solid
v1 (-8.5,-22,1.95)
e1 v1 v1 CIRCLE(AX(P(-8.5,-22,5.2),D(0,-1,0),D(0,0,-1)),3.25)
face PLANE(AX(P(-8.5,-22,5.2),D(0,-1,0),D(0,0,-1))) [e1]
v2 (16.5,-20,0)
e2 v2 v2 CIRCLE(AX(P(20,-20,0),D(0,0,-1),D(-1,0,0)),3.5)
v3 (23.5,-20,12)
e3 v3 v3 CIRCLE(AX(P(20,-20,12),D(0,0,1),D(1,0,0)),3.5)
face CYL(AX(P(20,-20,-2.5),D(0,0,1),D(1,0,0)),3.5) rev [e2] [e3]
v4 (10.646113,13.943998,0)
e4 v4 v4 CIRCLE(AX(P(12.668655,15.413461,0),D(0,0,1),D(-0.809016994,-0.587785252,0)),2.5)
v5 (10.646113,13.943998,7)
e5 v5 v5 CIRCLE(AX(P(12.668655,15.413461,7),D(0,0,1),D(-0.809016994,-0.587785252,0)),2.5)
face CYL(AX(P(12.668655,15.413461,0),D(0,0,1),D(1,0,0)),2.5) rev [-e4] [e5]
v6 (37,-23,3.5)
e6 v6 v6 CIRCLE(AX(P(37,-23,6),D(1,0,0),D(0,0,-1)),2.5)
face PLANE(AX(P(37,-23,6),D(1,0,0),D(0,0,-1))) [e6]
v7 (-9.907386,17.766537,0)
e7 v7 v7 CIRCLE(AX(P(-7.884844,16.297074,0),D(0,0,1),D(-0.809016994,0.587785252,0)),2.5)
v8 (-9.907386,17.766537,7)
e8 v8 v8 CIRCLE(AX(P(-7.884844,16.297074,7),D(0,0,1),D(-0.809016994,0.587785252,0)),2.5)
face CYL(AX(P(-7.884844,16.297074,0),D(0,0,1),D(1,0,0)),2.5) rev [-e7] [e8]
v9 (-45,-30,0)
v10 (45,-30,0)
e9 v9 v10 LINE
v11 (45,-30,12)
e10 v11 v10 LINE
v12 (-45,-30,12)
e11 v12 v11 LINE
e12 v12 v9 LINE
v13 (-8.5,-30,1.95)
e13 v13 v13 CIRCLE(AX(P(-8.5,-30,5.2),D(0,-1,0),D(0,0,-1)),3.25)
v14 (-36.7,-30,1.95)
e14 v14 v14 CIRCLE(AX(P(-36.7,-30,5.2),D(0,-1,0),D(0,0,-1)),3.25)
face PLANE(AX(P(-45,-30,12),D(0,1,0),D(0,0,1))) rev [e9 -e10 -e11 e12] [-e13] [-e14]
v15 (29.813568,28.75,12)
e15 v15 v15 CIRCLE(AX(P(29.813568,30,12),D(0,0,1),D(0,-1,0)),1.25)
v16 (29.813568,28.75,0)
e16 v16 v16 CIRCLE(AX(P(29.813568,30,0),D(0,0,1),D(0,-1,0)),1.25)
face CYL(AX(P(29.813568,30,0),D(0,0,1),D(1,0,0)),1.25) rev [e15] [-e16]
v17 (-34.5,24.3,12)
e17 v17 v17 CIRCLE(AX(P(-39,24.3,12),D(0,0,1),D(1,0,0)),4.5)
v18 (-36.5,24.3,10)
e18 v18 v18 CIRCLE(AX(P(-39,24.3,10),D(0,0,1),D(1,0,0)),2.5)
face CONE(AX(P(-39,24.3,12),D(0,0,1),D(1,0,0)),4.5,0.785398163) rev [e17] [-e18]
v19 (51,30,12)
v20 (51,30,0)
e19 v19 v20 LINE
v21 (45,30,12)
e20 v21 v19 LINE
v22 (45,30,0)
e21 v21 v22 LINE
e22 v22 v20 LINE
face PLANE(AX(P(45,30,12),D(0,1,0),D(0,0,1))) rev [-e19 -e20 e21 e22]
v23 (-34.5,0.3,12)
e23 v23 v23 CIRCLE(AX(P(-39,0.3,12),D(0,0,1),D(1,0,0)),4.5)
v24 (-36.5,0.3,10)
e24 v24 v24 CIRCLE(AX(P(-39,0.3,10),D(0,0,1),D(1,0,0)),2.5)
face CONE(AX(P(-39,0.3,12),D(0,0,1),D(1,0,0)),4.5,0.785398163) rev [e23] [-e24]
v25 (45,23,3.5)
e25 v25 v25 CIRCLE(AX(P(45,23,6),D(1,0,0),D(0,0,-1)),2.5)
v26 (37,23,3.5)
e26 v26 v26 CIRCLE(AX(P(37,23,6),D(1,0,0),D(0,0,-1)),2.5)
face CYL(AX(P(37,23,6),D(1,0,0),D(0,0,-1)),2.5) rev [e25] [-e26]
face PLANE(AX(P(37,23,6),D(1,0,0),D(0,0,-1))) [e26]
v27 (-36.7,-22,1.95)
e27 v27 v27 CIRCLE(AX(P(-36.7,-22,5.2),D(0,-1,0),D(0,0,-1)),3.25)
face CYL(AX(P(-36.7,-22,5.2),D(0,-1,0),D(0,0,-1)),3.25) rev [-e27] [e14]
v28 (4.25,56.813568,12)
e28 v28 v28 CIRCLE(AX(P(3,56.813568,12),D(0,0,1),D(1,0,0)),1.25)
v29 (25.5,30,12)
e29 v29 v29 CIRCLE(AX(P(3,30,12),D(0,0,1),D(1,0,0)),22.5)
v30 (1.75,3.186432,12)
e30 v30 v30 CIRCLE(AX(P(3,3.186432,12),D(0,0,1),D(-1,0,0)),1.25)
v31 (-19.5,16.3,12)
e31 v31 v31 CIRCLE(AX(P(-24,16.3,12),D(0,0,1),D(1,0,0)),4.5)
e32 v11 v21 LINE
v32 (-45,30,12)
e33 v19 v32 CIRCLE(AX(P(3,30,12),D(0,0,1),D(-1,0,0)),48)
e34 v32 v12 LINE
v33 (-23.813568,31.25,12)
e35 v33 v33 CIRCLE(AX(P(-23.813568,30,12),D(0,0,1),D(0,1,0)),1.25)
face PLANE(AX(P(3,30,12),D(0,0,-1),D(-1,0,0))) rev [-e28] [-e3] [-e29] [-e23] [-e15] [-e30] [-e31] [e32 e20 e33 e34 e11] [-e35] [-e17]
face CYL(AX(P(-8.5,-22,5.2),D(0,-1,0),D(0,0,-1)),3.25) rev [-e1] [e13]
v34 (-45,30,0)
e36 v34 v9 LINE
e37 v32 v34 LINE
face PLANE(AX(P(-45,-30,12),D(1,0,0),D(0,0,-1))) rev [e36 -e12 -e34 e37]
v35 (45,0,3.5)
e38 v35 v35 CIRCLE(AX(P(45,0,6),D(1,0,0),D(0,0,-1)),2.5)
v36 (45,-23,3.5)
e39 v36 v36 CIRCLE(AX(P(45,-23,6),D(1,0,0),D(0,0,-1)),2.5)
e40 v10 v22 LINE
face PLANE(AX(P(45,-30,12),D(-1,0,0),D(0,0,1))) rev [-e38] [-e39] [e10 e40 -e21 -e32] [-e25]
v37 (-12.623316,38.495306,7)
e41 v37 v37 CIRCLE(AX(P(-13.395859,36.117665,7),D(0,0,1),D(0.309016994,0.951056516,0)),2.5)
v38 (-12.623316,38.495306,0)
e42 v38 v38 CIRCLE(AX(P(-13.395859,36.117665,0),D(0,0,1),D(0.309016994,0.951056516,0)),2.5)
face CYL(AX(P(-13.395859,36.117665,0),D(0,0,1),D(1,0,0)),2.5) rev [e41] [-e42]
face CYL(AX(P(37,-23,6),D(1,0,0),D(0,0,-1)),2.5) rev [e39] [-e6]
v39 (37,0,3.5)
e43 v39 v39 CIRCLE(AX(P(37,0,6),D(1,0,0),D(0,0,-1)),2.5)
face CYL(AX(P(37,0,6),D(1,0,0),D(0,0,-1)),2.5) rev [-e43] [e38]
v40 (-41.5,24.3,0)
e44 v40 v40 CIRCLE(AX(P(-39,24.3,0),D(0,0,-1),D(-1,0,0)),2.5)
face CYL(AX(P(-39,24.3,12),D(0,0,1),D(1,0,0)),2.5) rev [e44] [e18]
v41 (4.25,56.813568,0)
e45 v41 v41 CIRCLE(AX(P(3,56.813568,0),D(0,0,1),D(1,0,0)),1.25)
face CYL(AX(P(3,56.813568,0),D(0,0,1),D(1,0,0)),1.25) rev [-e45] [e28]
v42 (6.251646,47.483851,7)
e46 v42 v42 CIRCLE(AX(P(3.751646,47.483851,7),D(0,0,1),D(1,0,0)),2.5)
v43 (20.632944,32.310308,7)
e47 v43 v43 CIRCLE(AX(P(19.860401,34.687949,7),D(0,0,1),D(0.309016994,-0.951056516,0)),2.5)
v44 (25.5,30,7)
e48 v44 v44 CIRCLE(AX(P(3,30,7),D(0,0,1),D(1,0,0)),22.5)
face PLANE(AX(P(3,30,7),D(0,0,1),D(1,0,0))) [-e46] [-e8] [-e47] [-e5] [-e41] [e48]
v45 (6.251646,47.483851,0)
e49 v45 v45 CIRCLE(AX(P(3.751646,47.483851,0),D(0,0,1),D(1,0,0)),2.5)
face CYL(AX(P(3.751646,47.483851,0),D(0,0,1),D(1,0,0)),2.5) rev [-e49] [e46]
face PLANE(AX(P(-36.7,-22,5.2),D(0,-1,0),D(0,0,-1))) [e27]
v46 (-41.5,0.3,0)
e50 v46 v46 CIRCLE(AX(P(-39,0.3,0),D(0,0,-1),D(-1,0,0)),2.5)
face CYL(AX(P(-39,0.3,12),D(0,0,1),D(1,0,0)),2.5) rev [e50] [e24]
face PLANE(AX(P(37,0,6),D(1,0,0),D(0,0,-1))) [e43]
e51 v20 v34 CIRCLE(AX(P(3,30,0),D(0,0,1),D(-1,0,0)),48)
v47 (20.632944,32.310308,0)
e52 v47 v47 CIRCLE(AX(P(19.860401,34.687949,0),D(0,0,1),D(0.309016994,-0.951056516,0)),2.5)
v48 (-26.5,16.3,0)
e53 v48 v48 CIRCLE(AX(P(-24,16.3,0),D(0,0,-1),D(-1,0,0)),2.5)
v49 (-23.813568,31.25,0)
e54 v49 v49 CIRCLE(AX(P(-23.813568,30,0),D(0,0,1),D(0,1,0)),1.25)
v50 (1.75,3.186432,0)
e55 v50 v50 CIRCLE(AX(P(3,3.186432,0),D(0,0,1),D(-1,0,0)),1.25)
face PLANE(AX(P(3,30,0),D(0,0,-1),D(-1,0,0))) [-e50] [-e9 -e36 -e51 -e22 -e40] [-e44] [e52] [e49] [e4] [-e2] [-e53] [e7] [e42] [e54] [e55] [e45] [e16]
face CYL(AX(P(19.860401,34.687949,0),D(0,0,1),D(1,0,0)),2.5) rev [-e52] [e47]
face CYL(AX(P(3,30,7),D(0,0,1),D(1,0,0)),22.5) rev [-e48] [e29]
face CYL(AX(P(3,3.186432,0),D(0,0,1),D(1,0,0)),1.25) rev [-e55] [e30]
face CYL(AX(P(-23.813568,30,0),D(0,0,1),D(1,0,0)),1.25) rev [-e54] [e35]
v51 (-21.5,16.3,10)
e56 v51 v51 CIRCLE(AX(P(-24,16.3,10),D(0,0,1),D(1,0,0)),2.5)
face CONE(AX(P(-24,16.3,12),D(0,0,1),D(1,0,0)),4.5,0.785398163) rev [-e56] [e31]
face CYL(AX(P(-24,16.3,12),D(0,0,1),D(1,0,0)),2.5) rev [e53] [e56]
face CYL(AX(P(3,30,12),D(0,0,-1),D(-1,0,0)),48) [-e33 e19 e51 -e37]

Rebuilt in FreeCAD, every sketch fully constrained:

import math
import FreeCAD as App
import Part
import Sketcher
from FreeCAD import Vector

doc = App.newDocument("Part")
body = doc.addObject("PartDesign::Body", "Body")

sketch1 = body.newObject("Sketcher::SketchObject", "Sketch")
sketch1.AttachmentSupport = (doc.getObject("XY_Plane"), [""])
sketch1.MapMode = "FlatFace"
sketch1.addGeometry([
    Part.LineSegment(Vector(45, 30, 0), Vector(51, 30, 0)),
    Part.ArcOfCircle(Part.Circle(Vector(3, 30, 0), Vector(0, 0, 1), 48), math.radians(0), math.radians(180)),
    Part.LineSegment(Vector(-45, 30, 0), Vector(-45, -30, 0)),
    Part.LineSegment(Vector(-45, -30, 0), Vector(45, -30, 0)),
    Part.LineSegment(Vector(45, -30, 0), Vector(45, 30, 0)),
], False)
sketch1.addConstraint([
    Sketcher.Constraint("Coincident", 0, 2, 1, 1),
    Sketcher.Constraint("Tangent", 1, 2, 2, 1),
    Sketcher.Constraint("Coincident", 2, 2, 3, 1),
    Sketcher.Constraint("Coincident", 3, 2, 4, 1),
    Sketcher.Constraint("Coincident", 4, 2, 0, 1),
    Sketcher.Constraint("Horizontal", 0),
    Sketcher.Constraint("Vertical", 2),
    Sketcher.Constraint("Horizontal", 3),
    Sketcher.Constraint("Vertical", 4),
    Sketcher.Constraint("Symmetric", 1, 2, 3, 2, -1, 1),
    Sketcher.Constraint("Horizontal", 1, 3, 0, 2),
    Sketcher.Constraint("Radius", 1, 48.0),
    Sketcher.Constraint("DistanceX", 0, 1, 0, 2, 6.0),
    Sketcher.Constraint("DistanceY", 2, 2, 2, 1, 60.0),
])
pad1 = body.newObject("PartDesign::Pad", "Pad")
pad1.Profile = sketch1
pad1.Length = 12

sketch2 = body.newObject("Sketcher::SketchObject", "Sketch001")
sketch2.AttachmentSupport = (doc.getObject("XY_Plane"), [""])
sketch2.MapMode = "FlatFace"
sketch2.AttachmentOffset = App.Placement(Vector(0, 0, 12), App.Rotation())
sketch2.addGeometry(Part.Circle(Vector(3, 30, 0), Vector(0, 0, 1), 22), False)
sketch2.addConstraint([
    Sketcher.Constraint("Diameter", 0, 45.0),
    Sketcher.Constraint("DistanceX", -1, 1, 0, 3, 3.0),
    Sketcher.Constraint("DistanceY", -1, 1, 0, 3, 30.0),
])
pocket1 = body.newObject("PartDesign::Pocket", "Pocket")
pocket1.Profile = sketch2
pocket1.Length = 5

sketch3 = body.newObject("Sketcher::SketchObject", "Sketch002")
sketch3.AttachmentSupport = (doc.getObject("XY_Plane"), [""])
sketch3.MapMode = "FlatFace"
sketch3.AttachmentOffset = App.Placement(Vector(0, 0, 7), App.Rotation())
sketch3.addGeometry(Part.Circle(Vector(3.8, 47.5, 0), Vector(0, 0, 1), 2.5), False)
sketch3.addConstraint([
    Sketcher.Constraint("Diameter", 0, 5.0),
    Sketcher.Constraint("DistanceY", -1, 1, 0, 3, 47.483851),
    Sketcher.Constraint("DistanceX", -1, 1, 0, 3, 3.751646),
])
pocket2 = body.newObject("PartDesign::Pocket", "Pocket001")
pocket2.Profile = sketch3
pocket2.Type = "ThroughAll"
doc.recompute()

datumline = body.newObject("PartDesign::Line", "DatumLine")
datumline.Placement = App.Placement(Vector(3, 30, 0), App.Rotation(Vector(0, 0, 1), Vector(0, 0, 1)))
polarpattern = body.newObject("PartDesign::PolarPattern", "PolarPattern")
polarpattern.Originals = [pocket2]
polarpattern.Axis = (datumline, [""])
polarpattern.Angle = 360
polarpattern.Occurrences = 5
body.Tip = polarpattern

sketch4 = body.newObject("Sketcher::SketchObject", "Sketch003")
sketch4.AttachmentSupport = (doc.getObject("XY_Plane"), [""])
sketch4.MapMode = "FlatFace"
sketch4.AttachmentOffset = App.Placement(Vector(0, 0, 12), App.Rotation())
sketch4.addGeometry(Part.Circle(Vector(3, 56.8, 0), Vector(0, 0, 1), 1.2), False)
sketch4.addConstraint([
    Sketcher.Constraint("Diameter", 0, 2.5),
    Sketcher.Constraint("DistanceX", -1, 1, 0, 3, 3.0),
    Sketcher.Constraint("DistanceY", -1, 1, 0, 3, 56.813568),
])
pocket3 = body.newObject("PartDesign::Pocket", "Pocket002")
pocket3.Profile = sketch4
pocket3.Type = "ThroughAll"
doc.recompute()

datumline2 = body.newObject("PartDesign::Line", "DatumLine001")
datumline2.Placement = App.Placement(Vector(3, 30, 0), App.Rotation(Vector(0, 0, 1), Vector(0, 0, 1)))
polarpattern2 = body.newObject("PartDesign::PolarPattern", "PolarPattern001")
polarpattern2.Originals = [pocket3]
polarpattern2.Axis = (datumline2, [""])
polarpattern2.Angle = 360
polarpattern2.Occurrences = 4
body.Tip = polarpattern2

sketch5 = body.newObject("Sketcher::SketchObject", "Sketch004")
sketch5.AttachmentSupport = (doc.getObject("XY_Plane"), [""])
sketch5.MapMode = "FlatFace"
sketch5.AttachmentOffset = App.Placement(Vector(0, 0, 12), App.Rotation())
sketch5.addGeometry(Part.Circle(Vector(20, -20, 0), Vector(0, 0, 1), 3.5), False)
sketch5.addConstraint([
    Sketcher.Constraint("Diameter", 0, 7.0),
    Sketcher.Constraint("DistanceX", -1, 1, 0, 3, 20.0),
    Sketcher.Constraint("DistanceY", 0, 3, -1, 1, 20.0),
])
pocket4 = body.newObject("PartDesign::Pocket", "Pocket003")
pocket4.Profile = sketch5
pocket4.Length = 14.5

sketch6 = body.newObject("Sketcher::SketchObject", "Sketch005")
sketch6.AttachmentSupport = (doc.getObject("XZ_Plane"), [""])
sketch6.MapMode = "FlatFace"
sketch6.AttachmentOffset = App.Placement(Vector(0, 0, 30), App.Rotation())
sketch6.addGeometry(Part.Circle(Vector(-36.7, 5.2, 0), Vector(0, 0, 1), 3.2), False)
sketch6.addConstraint([
    Sketcher.Constraint("Diameter", 0, 6.5),
    Sketcher.Constraint("DistanceX", 0, 3, -1, 1, 36.7),
    Sketcher.Constraint("DistanceY", -1, 1, 0, 3, 5.2),
])
pocket5 = body.newObject("PartDesign::Pocket", "Pocket004")
pocket5.Profile = sketch6
pocket5.Length = 8
doc.recompute()

linearpattern = body.newObject("PartDesign::LinearPattern", "LinearPattern")
linearpattern.Originals = [pocket5]
linearpattern.Direction = (doc.getObject("X_Axis"), [""])
linearpattern.Mode = "offset"
linearpattern.Offset = 28.2
linearpattern.Occurrences = 2
body.Tip = linearpattern

sketch7 = body.newObject("Sketcher::SketchObject", "Sketch006")
sketch7.AttachmentSupport = (doc.getObject("YZ_Plane"), [""])
sketch7.MapMode = "FlatFace"
sketch7.AttachmentOffset = App.Placement(Vector(0, 0, 45), App.Rotation())
sketch7.addGeometry(Part.Circle(Vector(-23, 6, 0), Vector(0, 0, 1), 2.5), False)
sketch7.addConstraint([
    Sketcher.Constraint("Diameter", 0, 5.0),
    Sketcher.Constraint("DistanceX", 0, 3, -1, 1, 23.0),
    Sketcher.Constraint("DistanceY", -1, 1, 0, 3, 6.0),
])
pocket6 = body.newObject("PartDesign::Pocket", "Pocket005")
pocket6.Profile = sketch7
pocket6.Length = 8
doc.recompute()

linearpattern2 = body.newObject("PartDesign::LinearPattern", "LinearPattern001")
linearpattern2.Originals = [pocket6]
linearpattern2.Direction = (doc.getObject("Y_Axis"), [""])
linearpattern2.Mode = "offset"
linearpattern2.Offset = 23
linearpattern2.Occurrences = 3
body.Tip = linearpattern2

sketch8 = body.newObject("Sketcher::SketchObject", "Sketch007")
sketch8.AttachmentSupport = (doc.getObject("XY_Plane"), [""])
sketch8.MapMode = "FlatFace"
sketch8.AttachmentOffset = App.Placement(Vector(0, 0, 12), App.Rotation())
sketch8.addGeometry([
    Part.Circle(Vector(-39, 24.3, 0), Vector(0, 0, 1), 2.5),
    Part.Circle(Vector(-39, 0.3, 0), Vector(0, 0, 1), 2.5),
    Part.Circle(Vector(-24, 16.3, 0), Vector(0, 0, 1), 2.5),
], False)
sketch8.addConstraint([
    Sketcher.Constraint("Equal", 0, 1),
    Sketcher.Constraint("Equal", 1, 2),
    Sketcher.Constraint("Vertical", 0, 3, 1, 3),
    Sketcher.Constraint("Diameter", 0, 5.0),
    Sketcher.Constraint("DistanceX", 0, 3, -1, 1, 39.0),
    Sketcher.Constraint("DistanceX", 2, 3, -1, 1, 24.0),
    Sketcher.Constraint("DistanceY", 1, 3, 0, 3, 24.0),
    Sketcher.Constraint("DistanceY", 2, 3, 0, 3, 8.0),
    Sketcher.Constraint("DistanceY", -1, 1, 0, 3, 24.3),
])
doc.recompute()
hole = body.newObject("PartDesign::Hole", "Hole")
hole.Profile = sketch8
hole.ThreadType = "None"
hole.Diameter = 5
hole.DepthType = "ThroughAll"
hole.HoleCutType = "Countersink"
hole.HoleCutDiameter = 9
hole.HoleCutCountersinkAngle = 90

doc.recompute()
